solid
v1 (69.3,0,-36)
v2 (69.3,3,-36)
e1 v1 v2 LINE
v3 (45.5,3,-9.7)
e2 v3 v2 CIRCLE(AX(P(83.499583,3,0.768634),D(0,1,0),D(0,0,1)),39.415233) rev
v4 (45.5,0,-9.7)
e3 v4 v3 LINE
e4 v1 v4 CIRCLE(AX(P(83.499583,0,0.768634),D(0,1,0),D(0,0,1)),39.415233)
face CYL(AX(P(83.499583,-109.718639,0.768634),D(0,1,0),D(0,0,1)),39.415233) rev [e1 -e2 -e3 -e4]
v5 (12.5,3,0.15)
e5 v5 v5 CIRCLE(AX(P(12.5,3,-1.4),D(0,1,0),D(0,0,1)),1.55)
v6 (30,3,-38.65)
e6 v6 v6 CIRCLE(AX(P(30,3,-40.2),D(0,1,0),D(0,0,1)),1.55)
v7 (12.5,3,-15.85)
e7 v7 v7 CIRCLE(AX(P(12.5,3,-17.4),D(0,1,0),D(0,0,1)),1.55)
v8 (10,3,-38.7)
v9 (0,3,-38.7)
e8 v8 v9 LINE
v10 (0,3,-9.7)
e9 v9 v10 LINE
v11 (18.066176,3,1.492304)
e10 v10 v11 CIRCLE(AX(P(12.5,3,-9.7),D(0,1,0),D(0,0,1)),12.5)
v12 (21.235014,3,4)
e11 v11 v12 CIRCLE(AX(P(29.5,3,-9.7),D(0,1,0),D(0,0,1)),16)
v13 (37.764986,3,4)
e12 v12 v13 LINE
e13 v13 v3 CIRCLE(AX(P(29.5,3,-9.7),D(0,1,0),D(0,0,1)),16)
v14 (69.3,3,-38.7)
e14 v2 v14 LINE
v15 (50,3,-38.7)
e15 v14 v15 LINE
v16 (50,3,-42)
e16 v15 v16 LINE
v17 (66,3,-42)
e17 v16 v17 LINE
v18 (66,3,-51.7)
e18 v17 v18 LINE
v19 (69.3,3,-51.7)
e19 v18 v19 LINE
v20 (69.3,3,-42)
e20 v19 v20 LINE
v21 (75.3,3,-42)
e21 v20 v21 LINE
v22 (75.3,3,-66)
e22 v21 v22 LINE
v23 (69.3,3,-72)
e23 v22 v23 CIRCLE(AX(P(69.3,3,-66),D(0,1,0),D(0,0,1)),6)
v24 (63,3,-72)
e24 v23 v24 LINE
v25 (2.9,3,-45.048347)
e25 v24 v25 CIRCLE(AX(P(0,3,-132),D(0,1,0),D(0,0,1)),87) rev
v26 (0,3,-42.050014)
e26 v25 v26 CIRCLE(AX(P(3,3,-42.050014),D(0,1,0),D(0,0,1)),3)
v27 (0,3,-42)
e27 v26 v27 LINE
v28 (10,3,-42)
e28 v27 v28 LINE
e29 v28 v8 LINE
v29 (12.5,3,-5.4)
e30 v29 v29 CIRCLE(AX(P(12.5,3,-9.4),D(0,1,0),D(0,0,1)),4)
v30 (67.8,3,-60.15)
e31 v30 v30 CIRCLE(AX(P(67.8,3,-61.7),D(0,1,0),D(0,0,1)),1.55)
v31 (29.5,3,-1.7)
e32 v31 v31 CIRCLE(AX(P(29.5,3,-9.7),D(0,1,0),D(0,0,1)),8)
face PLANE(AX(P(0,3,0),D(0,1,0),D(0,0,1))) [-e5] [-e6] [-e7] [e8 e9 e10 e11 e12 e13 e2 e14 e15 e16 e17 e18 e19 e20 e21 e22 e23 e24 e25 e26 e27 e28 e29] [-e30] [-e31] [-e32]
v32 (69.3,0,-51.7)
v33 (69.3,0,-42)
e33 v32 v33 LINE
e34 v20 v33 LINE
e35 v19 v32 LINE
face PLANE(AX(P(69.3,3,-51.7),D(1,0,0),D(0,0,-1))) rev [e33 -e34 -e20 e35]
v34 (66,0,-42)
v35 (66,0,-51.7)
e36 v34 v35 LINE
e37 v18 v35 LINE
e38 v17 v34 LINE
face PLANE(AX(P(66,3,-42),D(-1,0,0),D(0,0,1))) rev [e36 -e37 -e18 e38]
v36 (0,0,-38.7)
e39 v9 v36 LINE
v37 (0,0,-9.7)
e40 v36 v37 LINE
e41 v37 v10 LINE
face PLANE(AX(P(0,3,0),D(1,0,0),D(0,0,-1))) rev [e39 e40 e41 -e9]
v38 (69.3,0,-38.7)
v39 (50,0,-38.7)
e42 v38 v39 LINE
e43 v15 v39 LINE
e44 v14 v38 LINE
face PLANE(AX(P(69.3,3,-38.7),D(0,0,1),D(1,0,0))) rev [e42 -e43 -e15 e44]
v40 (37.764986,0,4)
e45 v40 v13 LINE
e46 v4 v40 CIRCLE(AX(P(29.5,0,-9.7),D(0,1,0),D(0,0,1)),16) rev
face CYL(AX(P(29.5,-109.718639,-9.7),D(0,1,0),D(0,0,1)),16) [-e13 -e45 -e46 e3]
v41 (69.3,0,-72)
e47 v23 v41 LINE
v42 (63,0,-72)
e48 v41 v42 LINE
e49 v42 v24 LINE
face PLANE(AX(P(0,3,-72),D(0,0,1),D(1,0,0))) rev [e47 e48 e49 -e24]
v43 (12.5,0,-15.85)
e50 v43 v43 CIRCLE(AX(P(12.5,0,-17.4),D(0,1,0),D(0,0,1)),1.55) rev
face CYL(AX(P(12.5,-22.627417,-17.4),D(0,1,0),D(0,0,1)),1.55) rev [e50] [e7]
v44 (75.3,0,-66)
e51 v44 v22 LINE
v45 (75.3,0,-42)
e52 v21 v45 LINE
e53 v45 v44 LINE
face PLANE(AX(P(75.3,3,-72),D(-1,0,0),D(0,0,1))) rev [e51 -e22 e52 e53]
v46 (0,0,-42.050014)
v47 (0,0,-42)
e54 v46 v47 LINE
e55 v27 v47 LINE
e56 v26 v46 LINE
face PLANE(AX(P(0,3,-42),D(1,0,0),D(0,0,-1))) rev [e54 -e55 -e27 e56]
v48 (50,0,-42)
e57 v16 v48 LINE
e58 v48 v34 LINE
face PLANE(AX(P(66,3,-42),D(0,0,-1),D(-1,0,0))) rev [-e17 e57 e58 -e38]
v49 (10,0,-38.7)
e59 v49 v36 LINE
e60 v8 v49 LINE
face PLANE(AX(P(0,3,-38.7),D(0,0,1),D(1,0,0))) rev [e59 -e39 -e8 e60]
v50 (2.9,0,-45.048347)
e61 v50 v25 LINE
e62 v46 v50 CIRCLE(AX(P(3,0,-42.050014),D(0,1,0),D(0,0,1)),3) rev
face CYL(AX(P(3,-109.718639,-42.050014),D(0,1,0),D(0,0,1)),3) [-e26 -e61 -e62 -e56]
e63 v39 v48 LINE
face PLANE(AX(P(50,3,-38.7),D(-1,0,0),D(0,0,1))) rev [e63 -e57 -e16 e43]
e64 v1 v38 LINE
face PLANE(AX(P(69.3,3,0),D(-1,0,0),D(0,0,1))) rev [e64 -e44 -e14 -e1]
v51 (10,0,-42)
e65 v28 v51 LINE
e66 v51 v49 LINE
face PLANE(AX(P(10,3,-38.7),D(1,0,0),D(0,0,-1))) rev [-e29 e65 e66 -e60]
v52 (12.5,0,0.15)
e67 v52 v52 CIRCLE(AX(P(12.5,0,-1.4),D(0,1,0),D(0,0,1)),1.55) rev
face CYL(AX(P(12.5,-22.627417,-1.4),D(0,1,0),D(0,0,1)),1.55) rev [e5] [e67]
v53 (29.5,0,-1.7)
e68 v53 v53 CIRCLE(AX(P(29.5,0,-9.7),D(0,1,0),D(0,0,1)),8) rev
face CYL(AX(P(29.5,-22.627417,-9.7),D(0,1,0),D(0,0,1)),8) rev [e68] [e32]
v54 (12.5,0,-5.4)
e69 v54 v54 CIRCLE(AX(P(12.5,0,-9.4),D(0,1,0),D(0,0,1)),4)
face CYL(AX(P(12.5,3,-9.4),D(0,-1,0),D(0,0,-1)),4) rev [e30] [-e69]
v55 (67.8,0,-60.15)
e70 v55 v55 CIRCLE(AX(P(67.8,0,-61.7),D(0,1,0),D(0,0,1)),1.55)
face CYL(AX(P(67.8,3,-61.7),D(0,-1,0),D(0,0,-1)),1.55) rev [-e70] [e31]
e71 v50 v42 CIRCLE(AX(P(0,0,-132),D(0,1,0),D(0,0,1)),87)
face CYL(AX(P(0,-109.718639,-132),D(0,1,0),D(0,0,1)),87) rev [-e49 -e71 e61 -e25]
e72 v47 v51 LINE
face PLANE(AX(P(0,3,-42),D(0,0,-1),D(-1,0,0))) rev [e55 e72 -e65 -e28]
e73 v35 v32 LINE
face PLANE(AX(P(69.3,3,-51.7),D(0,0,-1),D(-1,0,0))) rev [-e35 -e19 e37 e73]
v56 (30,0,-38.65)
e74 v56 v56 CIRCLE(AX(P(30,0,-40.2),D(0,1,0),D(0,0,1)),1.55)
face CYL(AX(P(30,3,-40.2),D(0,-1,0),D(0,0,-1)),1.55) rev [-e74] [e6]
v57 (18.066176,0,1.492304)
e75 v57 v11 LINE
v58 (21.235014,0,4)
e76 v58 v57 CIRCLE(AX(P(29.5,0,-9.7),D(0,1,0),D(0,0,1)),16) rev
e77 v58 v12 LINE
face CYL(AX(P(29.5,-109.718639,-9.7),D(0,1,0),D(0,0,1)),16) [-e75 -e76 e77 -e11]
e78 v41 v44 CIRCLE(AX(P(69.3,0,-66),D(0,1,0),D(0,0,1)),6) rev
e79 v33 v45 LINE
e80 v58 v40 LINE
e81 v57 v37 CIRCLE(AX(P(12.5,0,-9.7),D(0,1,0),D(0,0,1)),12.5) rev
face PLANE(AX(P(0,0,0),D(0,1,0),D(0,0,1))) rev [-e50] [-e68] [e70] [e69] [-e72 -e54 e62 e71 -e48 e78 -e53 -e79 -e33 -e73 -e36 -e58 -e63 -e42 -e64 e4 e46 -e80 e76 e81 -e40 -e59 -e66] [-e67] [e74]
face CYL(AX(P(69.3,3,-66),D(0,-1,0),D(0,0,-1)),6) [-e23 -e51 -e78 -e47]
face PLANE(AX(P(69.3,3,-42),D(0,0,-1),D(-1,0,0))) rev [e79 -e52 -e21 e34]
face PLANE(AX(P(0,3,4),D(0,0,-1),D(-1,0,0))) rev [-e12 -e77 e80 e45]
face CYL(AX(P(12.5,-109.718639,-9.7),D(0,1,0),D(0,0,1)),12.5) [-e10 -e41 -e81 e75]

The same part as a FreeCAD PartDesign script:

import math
import FreeCAD as App
import Part
import Sketcher

V = App.Vector
Q = App.Units.Quantity


def edges_at(feature, points):
    """Names of the edges that pass closest to the given points."""
    edges = feature.Shape.Edges
    near = lambda p: min(range(len(edges)), key=lambda i: edges[i].distToShape(Part.Vertex(*p))[0])
    return sorted({f"Edge{near(p) + 1}" for p in points})

doc = App.newDocument("Part")
body = doc.addObject("PartDesign::Body", "Body")

# Sketch on XZ plane
sketch1 = doc.addObject("Sketcher::SketchObject", "Sketch")
body.addObject(sketch1)
sketch1.AttachmentSupport = (doc.XZ_Plane, [""])
sketch1.MapMode = "FlatFace"
sketch1.addGeometry([
    Part.LineSegment(V(0, -38.7, 0), V(0, 4, 0)),  # 0
    Part.LineSegment(V(0, 4, 0), V(69.3, 4, 0)),  # 1
    Part.LineSegment(V(69.3, 4, 0), V(69.3, -38.7, 0)),  # 2
    Part.LineSegment(V(69.3, -38.7, 0), V(50, -38.7, 0)),  # 3
    Part.LineSegment(V(50, -38.7, 0), V(50, -42, 0)),  # 4
    Part.LineSegment(V(50, -42, 0), V(66, -42, 0)),  # 5
    Part.LineSegment(V(66, -42, 0), V(66, -51.7, 0)),  # 6
    Part.LineSegment(V(66, -51.7, 0), V(69.3, -51.7, 0)),  # 7
    Part.LineSegment(V(69.3, -51.7, 0), V(69.3, -42, 0)),  # 8
    Part.LineSegment(V(69.3, -42, 0), V(75.3, -42, 0)),  # 9
    Part.LineSegment(V(75.3, -42, 0), V(75.3, -72, 0)),  # 10
    Part.LineSegment(V(75.3, -72, 0), V(0, -72, 0)),  # 11
    Part.LineSegment(V(0, -72, 0), V(0, -42, 0)),  # 12
    Part.LineSegment(V(0, -42, 0), V(10, -42, 0)),  # 13
    Part.LineSegment(V(10, -42, 0), V(10, -38.7, 0)),  # 14
    Part.LineSegment(V(10, -38.7, 0), V(0, -38.7, 0)),  # 15
    Part.Circle(V(12.5, -9.4, 0), V(0, 0, 1), 4),  # 16
    Part.Circle(V(67.8, -61.7, 0), V(0, 0, 1), 1.6),  # 17
    Part.Circle(V(30, -40.2, 0), V(0, 0, 1), 1.6),  # 18
], False)
sketch1.addConstraint([
    Sketcher.Constraint("Coincident", 0, 2, 1, 1),
    Sketcher.Constraint("Coincident", 1, 2, 2, 1),
    Sketcher.Constraint("Coincident", 2, 2, 3, 1),
    Sketcher.Constraint("Coincident", 3, 2, 4, 1),
    Sketcher.Constraint("Coincident", 4, 2, 5, 1),
    Sketcher.Constraint("Coincident", 5, 2, 6, 1),
    Sketcher.Constraint("Coincident", 6, 2, 7, 1),
    Sketcher.Constraint("Coincident", 7, 2, 8, 1),
    Sketcher.Constraint("Coincident", 8, 2, 9, 1),
    Sketcher.Constraint("Coincident", 9, 2, 10, 1),
    Sketcher.Constraint("Coincident", 10, 2, 11, 1),
    Sketcher.Constraint("Coincident", 11, 2, 12, 1),
    Sketcher.Constraint("Coincident", 12, 2, 13, 1),
    Sketcher.Constraint("Coincident", 13, 2, 14, 1),
    Sketcher.Constraint("Coincident", 14, 2, 15, 1),
    Sketcher.Constraint("Coincident", 15, 2, 0, 1),
    Sketcher.Constraint("Vertical", 0),
    Sketcher.Constraint("Horizontal", 1),
    Sketcher.Constraint("Vertical", 2),
    Sketcher.Constraint("Horizontal", 3),
    Sketcher.Constraint("Vertical", 4),
    Sketcher.Constraint("Horizontal", 5),
    Sketcher.Constraint("Vertical", 6),
    Sketcher.Constraint("Horizontal", 7),
    Sketcher.Constraint("Vertical", 8),
    Sketcher.Constraint("Horizontal", 9),
    Sketcher.Constraint("Vertical", 10),
    Sketcher.Constraint("Horizontal", 11),
    Sketcher.Constraint("Vertical", 12),
    Sketcher.Constraint("Horizontal", 13),
    Sketcher.Constraint("Vertical", 14),
    Sketcher.Constraint("Horizontal", 15),
    Sketcher.Constraint("Equal", 17, 18),
    Sketcher.Constraint("PointOnObject", 0, 2, -2),
    Sketcher.Constraint("PointOnObject", 11, 2, -2),
    Sketcher.Constraint("Horizontal", 5, 2, 8, 2),
    Sketcher.Constraint("Horizontal", 9, 2, 12, 2),
    Sketcher.Constraint("Horizontal", 3, 2, 14, 2),
    Sketcher.Constraint("Vertical", 2, 2, 7, 2),
    Sketcher.Constraint("Equal", 7, 4),
    Sketcher.Constraint("Diameter", 16, Q("8 mm")),
    Sketcher.Constraint("Diameter", 17, Q("3.1 mm")),
    Sketcher.Constraint("DistanceX", 5, 1, 5, 2, Q("16 mm")),
    Sketcher.Constraint("DistanceX", 9, 1, 9, 2, Q("6 mm")),
    Sketcher.Constraint("DistanceX", 13, 1, 13, 2, Q("10 mm")),
    Sketcher.Constraint("DistanceY", 10, 2, 10, 1, Q("30 mm")),
    Sketcher.Constraint("DistanceX", 1, 1, 1, 2, Q("69.3 mm")),
    Sketcher.Constraint("DistanceX", 3, 2, 3, 1, Q("19.3 mm")),
    Sketcher.Constraint("DistanceY", 0, 1, 0, 2, Q("42.7 mm")),
    Sketcher.Constraint("DistanceY", 6, 2, 6, 1, Q("9.7 mm")),
    Sketcher.Constraint("DistanceX", -1, 1, 18, 3, Q("30 mm")),
    Sketcher.Constraint("DistanceY", -1, 1, 0, 2, Q("4 mm")),
    Sketcher.Constraint("DistanceY", 17, 3, 2, 2, Q("23 mm")),
    Sketcher.Constraint("DistanceX", -1, 1, 16, 3, Q("12.5 mm")),
    Sketcher.Constraint("DistanceY", 16, 3, -1, 1, Q("9.4 mm")),
    Sketcher.Constraint("DistanceX", -1, 1, 17, 3, Q("67.8 mm")),
    Sketcher.Constraint("DistanceY", 18, 3, -1, 1, Q("40.2 mm")),
])
pad1 = doc.addObject("PartDesign::Pad", "Pad")
body.addObject(pad1)
pad1.Profile = sketch1
pad1.Length = 3
pad1.Reversed = True

# Sketch on XZ plane
sketch2 = doc.addObject("Sketcher::SketchObject", "Sketch001")
body.addObject(sketch2)
sketch2.AttachmentSupport = (doc.XZ_Plane, [""])
sketch2.MapMode = "FlatFace"
sketch2.AttachmentOffset = App.Placement(V(0, 0, -3), App.Rotation())
sketch2.addGeometry([
    Part.Circle(V(29.5, -9.7, 0), V(0, 0, 1), 8),
    Part.Circle(V(12.5, -17.4, 0), V(0, 0, 1), 1.6),
    Part.Circle(V(12.5, -1.4, 0), V(0, 0, 1), 1.6),
], False)
sketch2.addConstraint([
    Sketcher.Constraint("Equal", 1, 2),
    Sketcher.Constraint("Vertical", 1, 3, 2, 3),
    Sketcher.Constraint("Diameter", 0, Q("16 mm")),
    Sketcher.Constraint("Diameter", 1, Q("3.1 mm")),
    Sketcher.Constraint("DistanceX", 1, 3, 0, 3, Q("17 mm")),
    Sketcher.Constraint("DistanceY", 1, 3, 2, 3, Q("16 mm")),
    Sketcher.Constraint("DistanceX", -1, 1, 0, 3, Q("29.5 mm")),
    Sketcher.Constraint("DistanceY", 0, 3, -1, 1, Q("9.7 mm")),
    Sketcher.Constraint("DistanceY", 1, 3, -1, 1, Q("17.4 mm")),
])
pocket1 = doc.addObject("PartDesign::Pocket", "Pocket")
body.addObject(pocket1)
pocket1.Profile = sketch2
pocket1.Length = 3
pocket1.Reversed = True

# Sketch on XZ plane
sketch3 = doc.addObject("Sketcher::SketchObject", "Sketch002")
body.addObject(sketch3)
sketch3.AttachmentSupport = (doc.XZ_Plane, [""])
sketch3.MapMode = "FlatFace"
sketch3.AttachmentOffset = App.Placement(V(0, 0, -3), App.Rotation())
sketch3.addGeometry([
    Part.LineSegment(V(-11.7, -83.7, 0), V(-11.7, 15.7, 0)),  # 0
    Part.LineSegment(V(-11.7, 15.7, 0), V(87, 15.7, 0)),  # 1
    Part.LineSegment(V(87, 15.7, 0), V(87, -83.7, 0)),  # 2
    Part.LineSegment(V(87, -83.7, 0), V(-11.7, -83.7, 0)),  # 3
    Part.LineSegment(V(63, -72, 0), V(75.3, -72, 0)),  # 4
    Part.LineSegment(V(75.3, -72, 0), V(75.3, -42, 0)),  # 5
    Part.LineSegment(V(75.3, -42, 0), V(69.3, -42, 0)),  # 6
    Part.LineSegment(V(69.3, -42, 0), V(69.3, -51.7, 0)),  # 7
    Part.LineSegment(V(69.3, -51.7, 0), V(66, -51.7, 0)),  # 8
    Part.LineSegment(V(66, -51.7, 0), V(66, -42, 0)),  # 9
    Part.LineSegment(V(66, -42, 0), V(50, -42, 0)),  # 10
    Part.LineSegment(V(50, -42, 0), V(50, -38.7, 0)),  # 11
    Part.LineSegment(V(50, -38.7, 0), V(69.3, -38.7, 0)),  # 12
    Part.LineSegment(V(69.3, -38.7, 0), V(69.3, -36, 0)),  # 13
    Part.ArcOfCircle(Part.Circle(V(83.5, 0.8, 0), V(0, 0, 1), 39.4), math.radians(-165), math.radians(-111)),  # 14
    Part.ArcOfCircle(Part.Circle(V(29.5, -9.7, 0), V(0, 0, 1), 16), math.radians(0), math.radians(59)),  # 15
    Part.LineSegment(V(37.8, 4, 0), V(21.2, 4, 0)),  # 16
    Part.ArcOfCircle(Part.Circle(V(29.5, -9.7, 0), V(0, 0, 1), 16), math.radians(121.1), math.radians(135.61)),  # 17
    Part.ArcOfCircle(Part.Circle(V(12.5, -9.7, 0), V(0, 0, 1), 12.5), math.radians(64), math.radians(180)),  # 18
    Part.LineSegment(V(0, -9.7, 0), V(0, -38.7, 0)),  # 19
    Part.LineSegment(V(0, -38.7, 0), V(10, -38.7, 0)),  # 20
    Part.LineSegment(V(10, -38.7, 0), V(10, -42, 0)),  # 21
    Part.LineSegment(V(10, -42, 0), V(0, -42, 0)),  # 22
    Part.LineSegment(V(0, -42, 0), V(0, -45, 0)),  # 23
    Part.ArcOfCircle(Part.Circle(V(0, -132, 0), V(0, 0, 1), 87), math.radians(44), math.radians(90)),  # 24
    Part.Circle(V(12.5, -9.4, 0), V(0, 0, 1), 4),  # 25
    Part.Circle(V(29.5, -9.7, 0), V(0, 0, 1), 8),  # 26
    Part.Circle(V(30, -40.2, 0), V(0, 0, 1), 1.6),  # 27
    Part.Circle(V(67.8, -61.7, 0), V(0, 0, 1), 1.6),  # 28
], False)
sketch3.addConstraint([
    Sketcher.Constraint("Coincident", 0, 2, 1, 1),
    Sketcher.Constraint("Coincident", 1, 2, 2, 1),
    Sketcher.Constraint("Coincident", 2, 2, 3, 1),
    Sketcher.Constraint("Coincident", 3, 2, 0, 1),
    Sketcher.Constraint("Coincident", 4, 2, 5, 1),
    Sketcher.Constraint("Coincident", 5, 2, 6, 1),
    Sketcher.Constraint("Coincident", 6, 2, 7, 1),
    Sketcher.Constraint("Coincident", 7, 2, 8, 1),
    Sketcher.Constraint("Coincident", 8, 2, 9, 1),
    Sketcher.Constraint("Coincident", 9, 2, 10, 1),
    Sketcher.Constraint("Coincident", 10, 2, 11, 1),
    Sketcher.Constraint("Coincident", 11, 2, 12, 1),
    Sketcher.Constraint("Coincident", 12, 2, 13, 1),
    Sketcher.Constraint("Coincident", 13, 2, 14, 2),
    Sketcher.Constraint("Coincident", 14, 1, 15, 1),
    Sketcher.Constraint("Coincident", 15, 2, 16, 1),
    Sketcher.Constraint("Coincident", 16, 2, 17, 1),
    Sketcher.Constraint("Coincident", 17, 2, 18, 1),
    Sketcher.Constraint("Tangent", 18, 2, 19, 1),
    Sketcher.Constraint("Coincident", 19, 2, 20, 1),
    Sketcher.Constraint("Coincident", 20, 2, 21, 1),
    Sketcher.Constraint("Coincident", 21, 2, 22, 1),
    Sketcher.Constraint("Coincident", 22, 2, 23, 1),
    Sketcher.Constraint("Coincident", 23, 2, 24, 2),
    Sketcher.Constraint("Coincident", 24, 1, 4, 1),
    Sketcher.Constraint("Vertical", 0),
    Sketcher.Constraint("Horizontal", 1),
    Sketcher.Constraint("Vertical", 2),
    Sketcher.Constraint("Horizontal", 3),
    Sketcher.Constraint("Horizontal", 4),
    Sketcher.Constraint("Vertical", 5),
    Sketcher.Constraint("Horizontal", 6),
    Sketcher.Constraint("Vertical", 7),
    Sketcher.Constraint("Horizontal", 8),
    Sketcher.Constraint("Vertical", 9),
    Sketcher.Constraint("Horizontal", 10),
    Sketcher.Constraint("Vertical", 11),
    Sketcher.Constraint("Horizontal", 12),
    Sketcher.Constraint("Vertical", 13),
    Sketcher.Constraint("Horizontal", 16),
    Sketcher.Constraint("Vertical", 19),
    Sketcher.Constraint("Horizontal", 20),
    Sketcher.Constraint("Vertical", 21),
    Sketcher.Constraint("Horizontal", 22),
    Sketcher.Constraint("Vertical", 23),
    Sketcher.Constraint("Coincident", 17, 3, 15, 3),
    Sketcher.Constraint("Coincident", 26, 3, 15, 3),
    Sketcher.Constraint("Equal", 15, 17),
    Sketcher.Constraint("Equal", 27, 28),
    Sketcher.Constraint("PointOnObject", 24, 3, -2),
    Sketcher.Constraint("PointOnObject", 18, 2, -2),
    Sketcher.Constraint("PointOnObject", 22, 2, -2),
    Sketcher.Constraint("Horizontal", 17, 3, 18, 3),
    Sketcher.Constraint("Horizontal", 6, 2, 9, 2),
    Sketcher.Constraint("Horizontal", 26, 3, 14, 1),
    Sketcher.Constraint("Horizontal", 12, 2, 19, 2),
    Sketcher.Constraint("Horizontal", 10, 2, 21, 2),
    Sketcher.Constraint("Vertical", 18, 3, 25, 3),
    Sketcher.Constraint("Vertical", 7, 2, 12, 2),
    Sketcher.Constraint("Equal", 8, 11),
    Sketcher.Constraint("Diameter", 25, Q("8 mm")),
    Sketcher.Constraint("Diameter", 26, Q("16 mm")),
    Sketcher.Constraint("Radius", 15, Q("16 mm")),
    Sketcher.Constraint("Radius", 24, Q("87 mm")),
    Sketcher.Constraint("Diameter", 27, Q("3.1 mm")),
    Sketcher.Constraint("Radius", 18, Q("12.5 mm")),
    Sketcher.Constraint("DistanceX", 6, 2, 6, 1, Q("6 mm")),
    Sketcher.Constraint("DistanceX", 10, 2, 10, 1, Q("16 mm")),
    Sketcher.Constraint("DistanceX", 20, 1, 20, 2, Q("10 mm")),
    Sketcher.Constraint("DistanceY", 5, 1, 5, 2, Q("30 mm")),
    Sketcher.Constraint("DistanceY", 19, 2, 19, 1, Q("29 mm")),
    Sketcher.Constraint("DistanceY", 23, 2, 23, 1, Q("3 mm")),
    Sketcher.Constraint("DistanceX", 4, 1, 4, 2, Q("12.3 mm")),
    Sketcher.Constraint("DistanceX", 8, 2, 8, 1, Q("3.3 mm")),
    Sketcher.Constraint("DistanceY", 7, 2, 7, 1, Q("9.7 mm")),
    Sketcher.Constraint("DistanceY", 13, 1, 13, 2, Q("2.7 mm")),
    Sketcher.Constraint("DistanceY", 24, 3, -1, 1, Q("132 mm")),
    Sketcher.Constraint("DistanceX", -1, 1, 27, 3, Q("30 mm")),
    Sketcher.Constraint("DistanceY", -1, 1, 15, 2, Q("4 mm")),
    Sketcher.Constraint("DistanceX", 18, 3, 17, 3, Q("17 mm")),
    Sketcher.Constraint("DistanceY", 28, 3, 26, 3, Q("52 mm")),
    Sketcher.Constraint("DistanceY", 25, 3, -1, 1, Q("9.4 mm")),
    Sketcher.Constraint("DistanceY", 27, 3, -1, 1, Q("40.2 mm")),
    Sketcher.Constraint("DistanceX", -1, 1, 28, 3, Q("67.8 mm")),
    Sketcher.Constraint("DistanceX", 1, 1, 1, 2, Q("98.706 mm")),
    Sketcher.Constraint("DistanceY", 0, 1, 0, 2, Q("99.406 mm")),
    Sketcher.Constraint("DistanceX", 0, 2, -1, 1, Q("11.703 mm")),
    Sketcher.Constraint("DistanceY", -1, 1, 0, 2, Q("15.703 mm")),
    Sketcher.Constraint("Radius", 14, Q("39.415233 mm")),
])
pocket2 = doc.addObject("PartDesign::Pocket", "Pocket001")
body.addObject(pocket2)
pocket2.Profile = sketch3
pocket2.Length = 3
pocket2.Reversed = True
doc.recompute()

fillet = doc.addObject("PartDesign::Fillet", "Fillet")
body.addObject(fillet)
fillet.Base = (pocket2, edges_at(pocket2, [(75.3, 1.5, -72)]))
fillet.Radius = 6
doc.recompute()

fillet2 = doc.addObject("PartDesign::Fillet", "Fillet001")
body.addObject(fillet2)
fillet2.Base = (fillet, edges_at(fillet, [(0, 1.5, -45)]))
fillet2.Radius = 3

doc.recompute()
